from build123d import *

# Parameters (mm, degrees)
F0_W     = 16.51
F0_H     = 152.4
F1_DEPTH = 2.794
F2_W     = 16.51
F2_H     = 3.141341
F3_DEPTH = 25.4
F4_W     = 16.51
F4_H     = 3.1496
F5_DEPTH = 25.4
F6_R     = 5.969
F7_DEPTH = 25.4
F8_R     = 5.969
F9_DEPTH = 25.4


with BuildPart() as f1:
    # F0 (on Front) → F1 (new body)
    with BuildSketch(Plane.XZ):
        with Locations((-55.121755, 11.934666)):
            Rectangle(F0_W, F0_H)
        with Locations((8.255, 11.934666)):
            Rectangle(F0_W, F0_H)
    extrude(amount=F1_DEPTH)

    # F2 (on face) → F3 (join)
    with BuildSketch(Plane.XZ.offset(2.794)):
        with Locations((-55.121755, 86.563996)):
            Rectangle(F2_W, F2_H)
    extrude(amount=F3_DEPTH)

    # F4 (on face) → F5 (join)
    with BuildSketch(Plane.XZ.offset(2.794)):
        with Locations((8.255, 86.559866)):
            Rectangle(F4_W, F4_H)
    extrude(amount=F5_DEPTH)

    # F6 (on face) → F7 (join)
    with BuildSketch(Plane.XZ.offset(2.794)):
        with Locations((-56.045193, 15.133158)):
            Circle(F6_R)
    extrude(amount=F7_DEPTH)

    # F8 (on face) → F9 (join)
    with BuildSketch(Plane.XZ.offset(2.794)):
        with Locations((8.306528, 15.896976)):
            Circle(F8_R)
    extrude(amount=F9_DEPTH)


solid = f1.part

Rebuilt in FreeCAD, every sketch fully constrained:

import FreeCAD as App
import Part
import Sketcher
Q = App.Units.Quantity


def add_polygon(sketch, points):
    """Adds a closed chain of lines whose ends are joined by coincident constraints."""
    first, n = sketch.GeometryCount, len(points)
    for a, b in zip(points, points[1:] + points[:1]):
        sketch.addGeometry(Part.LineSegment(App.Vector(*a, 0), App.Vector(*b, 0)), False)
    for i in range(n):
        sketch.addConstraint(Sketcher.Constraint("Coincident", first + i, 2, first + (i + 1) % n, 1))

doc = App.newDocument("Part")
body = doc.addObject("PartDesign::Body", "Body")
body.AllowCompound = True

sketch1 = body.newObject("Sketcher::SketchObject", "Sketch")
sketch1.AttachmentSupport = (doc.getObject("XZ_Plane"), [""])
sketch1.MapMode = "FlatFace"
add_polygon(sketch1, [(-63, 88), (-63, -64), (-47, -64), (-47, 88)])
add_polygon(sketch1, [(0, 88), (0, -64), (17, -64), (17, 88)])
sketch1.addConstraint([
    Sketcher.Constraint("Vertical", 0),
    Sketcher.Constraint("Horizontal", 1),
    Sketcher.Constraint("Vertical", 2),
    Sketcher.Constraint("Horizontal", 3),
    Sketcher.Constraint("Vertical", 4),
    Sketcher.Constraint("Horizontal", 5),
    Sketcher.Constraint("Vertical", 6),
    Sketcher.Constraint("Horizontal", 7),
    Sketcher.Constraint("PointOnObject", 4, 2, -2),
    Sketcher.Constraint("Horizontal", 1, 2, 4, 2),
    Sketcher.Constraint("Horizontal", 3, 2, 6, 2),
    Sketcher.Constraint("Equal", 3, 5),
    Sketcher.Constraint("DistanceY", 0, 2, 0, 1, Q("6 in")),
    Sketcher.Constraint("DistanceX", 1, 1, 1, 2, Q("0.65 in")),
    Sketcher.Constraint("DistanceX", 0, 2, -1, 1, 63.376755),
    Sketcher.Constraint("DistanceY", 0, 2, -1, 1, 64.265334),
])
pad1 = body.newObject("PartDesign::Pad", "Pad")
pad1.Profile = sketch1
pad1.Length = Q("0.11 in")

sketch2 = body.newObject("Sketcher::SketchObject", "Sketch001")
sketch2.AttachmentSupport = (doc.getObject("XZ_Plane"), [""])
sketch2.MapMode = "FlatFace"
sketch2.AttachmentOffset = App.Placement(App.Vector(0, 0, 0.11 * 25.4), App.Rotation())
add_polygon(sketch2, [(-63.4, 88.1), (-63.4, 85), (-46.9, 85), (-46.9, 88.1)])
sketch2.addConstraint([
    Sketcher.Constraint("Vertical", 0),
    Sketcher.Constraint("Horizontal", 1),
    Sketcher.Constraint("Vertical", 2),
    Sketcher.Constraint("Horizontal", 3),
    Sketcher.Constraint("DistanceX", 1, 1, 1, 2, Q("0.65 in")),
    Sketcher.Constraint("DistanceY", 0, 2, 0, 1, 3.141341),
    Sketcher.Constraint("DistanceX", 0, 2, -1, 1, 63.376755),
    Sketcher.Constraint("DistanceY", -1, 1, 0, 2, 84.993325),
])
pad2 = body.newObject("PartDesign::Pad", "Pad001")
pad2.Profile = sketch2
pad2.Length = Q("1 in")

sketch3 = body.newObject("Sketcher::SketchObject", "Sketch002")
sketch3.AttachmentSupport = (doc.getObject("XZ_Plane"), [""])
sketch3.MapMode = "FlatFace"
sketch3.AttachmentOffset = App.Placement(App.Vector(0, 0, 0.11 * 25.4), App.Rotation())
add_polygon(sketch3, [(0, 88.1), (0, 85), (16.5, 85), (16.5, 88.1)])
sketch3.addConstraint([
    Sketcher.Constraint("Vertical", 0),
    Sketcher.Constraint("Horizontal", 1),
    Sketcher.Constraint("Vertical", 2),
    Sketcher.Constraint("Horizontal", 3),
    Sketcher.Constraint("PointOnObject", 0, 2, -2),
    Sketcher.Constraint("DistanceX", 1, 1, 1, 2, Q("0.65 in")),
    Sketcher.Constraint("DistanceY", 0, 2, 0, 1, Q("0.124 in")),
    Sketcher.Constraint("DistanceY", -1, 1, 0, 2, 84.985066),
])
pad3 = body.newObject("PartDesign::Pad", "Pad002")
pad3.Profile = sketch3
pad3.Length = Q("1 in")

sketch4 = body.newObject("Sketcher::SketchObject", "Sketch003")
sketch4.AttachmentSupport = (doc.getObject("XZ_Plane"), [""])
sketch4.MapMode = "FlatFace"
sketch4.AttachmentOffset = App.Placement(App.Vector(0, 0, 0.11 * 25.4), App.Rotation())
sketch4.addGeometry(Part.Circle(App.Vector(-56, 15, 0), App.Vector(0, 0, 1), 6), False)
sketch4.addConstraint([
    Sketcher.Constraint("Diameter", 0, Q("0.47 in")),
    Sketcher.Constraint("DistanceX", 0, 3, -1, 1, 56.045193),
    Sketcher.Constraint("DistanceY", -1, 1, 0, 3, 15.133158),
])
pad4 = body.newObject("PartDesign::Pad", "Pad003")
pad4.Profile = sketch4
pad4.Length = Q("1 in")

sketch5 = body.newObject("Sketcher::SketchObject", "Sketch004")
sketch5.AttachmentSupport = (doc.getObject("XZ_Plane"), [""])
sketch5.MapMode = "FlatFace"
sketch5.AttachmentOffset = App.Placement(App.Vector(0, 0, 0.11 * 25.4), App.Rotation())
sketch5.addGeometry(Part.Circle(App.Vector(8, 16, 0), App.Vector(0, 0, 1), 6), False)
sketch5.addConstraint([
    Sketcher.Constraint("Diameter", 0, Q("0.47 in")),
    Sketcher.Constraint("DistanceX", -1, 1, 0, 3, 8.306528),
    Sketcher.Constraint("DistanceY", -1, 1, 0, 3, 15.896976),
])
pad5 = body.newObject("PartDesign::Pad", "Pad004")
pad5.Profile = sketch5
pad5.Length = Q("1 in")

doc.recompute()
